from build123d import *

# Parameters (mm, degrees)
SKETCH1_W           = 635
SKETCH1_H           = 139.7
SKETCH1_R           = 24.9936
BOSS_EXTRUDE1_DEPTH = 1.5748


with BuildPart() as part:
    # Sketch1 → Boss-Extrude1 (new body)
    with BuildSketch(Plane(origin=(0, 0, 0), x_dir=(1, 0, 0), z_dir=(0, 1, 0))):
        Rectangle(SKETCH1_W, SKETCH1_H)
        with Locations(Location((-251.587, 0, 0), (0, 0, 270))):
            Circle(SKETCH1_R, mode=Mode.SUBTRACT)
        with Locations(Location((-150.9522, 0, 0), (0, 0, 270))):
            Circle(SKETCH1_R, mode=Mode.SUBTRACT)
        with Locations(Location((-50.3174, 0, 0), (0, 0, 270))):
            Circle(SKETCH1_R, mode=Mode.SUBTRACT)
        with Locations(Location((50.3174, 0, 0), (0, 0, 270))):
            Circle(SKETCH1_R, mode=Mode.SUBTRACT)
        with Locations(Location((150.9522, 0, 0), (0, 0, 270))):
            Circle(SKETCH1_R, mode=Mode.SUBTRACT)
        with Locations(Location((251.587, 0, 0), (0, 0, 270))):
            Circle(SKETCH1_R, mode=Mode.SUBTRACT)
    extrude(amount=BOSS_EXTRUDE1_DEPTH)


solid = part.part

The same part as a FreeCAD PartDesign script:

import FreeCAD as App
import Part
import Sketcher

V = App.Vector
Q = App.Units.Quantity

doc = App.newDocument("Part")
body = doc.addObject("PartDesign::Body", "Body")

# Sketch on XZ plane
sketch1 = doc.addObject("Sketcher::SketchObject", "Sketch")
body.addObject(sketch1)
sketch1.AttachmentSupport = (doc.XZ_Plane, [""])
sketch1.MapMode = "FlatFace"
sketch1.addGeometry([
    Part.LineSegment(V(-318, -70, 0), V(-318, 70, 0)),  # 0
    Part.LineSegment(V(-318, 70, 0), V(318, 70, 0)),  # 1
    Part.LineSegment(V(318, 70, 0), V(318, -70, 0)),  # 2
    Part.LineSegment(V(318, -70, 0), V(-318, -70, 0)),  # 3
    Part.Circle(V(-252, 0, 0), V(0, 0, 1), 25),  # 4
    Part.Circle(V(-151, 0, 0), V(0, 0, 1), 25),  # 5
    Part.Circle(V(-50, 0, 0), V(0, 0, 1), 25),  # 6
    Part.Circle(V(50, 0, 0), V(0, 0, 1), 25),  # 7
    Part.Circle(V(151, 0, 0), V(0, 0, 1), 25),  # 8
    Part.Circle(V(252, 0, 0), V(0, 0, 1), 25),  # 9
], False)
sketch1.addConstraint([
    Sketcher.Constraint("Coincident", 0, 2, 1, 1),
    Sketcher.Constraint("Coincident", 1, 2, 2, 1),
    Sketcher.Constraint("Coincident", 2, 2, 3, 1),
    Sketcher.Constraint("Coincident", 3, 2, 0, 1),
    Sketcher.Constraint("Vertical", 0),
    Sketcher.Constraint("Horizontal", 1),
    Sketcher.Constraint("Vertical", 2),
    Sketcher.Constraint("Horizontal", 3),
    Sketcher.Constraint("Equal", 4, 5),
    Sketcher.Constraint("Equal", 5, 6),
    Sketcher.Constraint("Equal", 6, 7),
    Sketcher.Constraint("Equal", 7, 8),
    Sketcher.Constraint("Equal", 8, 9),
    Sketcher.Constraint("Symmetric", 6, 3, 7, 3, -1, 1),
    Sketcher.Constraint("Symmetric", 5, 3, 8, 3, -1, 1),
    Sketcher.Constraint("Symmetric", 4, 3, 9, 3, -1, 1),
    Sketcher.Constraint("Symmetric", 0, 2, 2, 2, -1, 1),
    Sketcher.Constraint("PointOnObject", 4, 3, -1),
    Sketcher.Constraint("PointOnObject", 5, 3, -1),
    Sketcher.Constraint("PointOnObject", 6, 3, -1),
    Sketcher.Constraint("DistanceX", 1, 1, 1, 2, Q("25 in")),
    Sketcher.Constraint("Diameter", 4, Q("1.968 in")),
    Sketcher.Constraint("DistanceY", 0, 1, 0, 2, Q("5.5 in")),
    Sketcher.Constraint("DistanceX", 4, 3, 9, 3, Q("19.81 in")),
    Sketcher.Constraint("DistanceX", 5, 3, -1, 1, Q("5.943 in")),
    Sketcher.Constraint("DistanceX", 6, 3, -1, 1, Q("1.981 in")),
])
pad1 = doc.addObject("PartDesign::Pad", "Pad")
body.addObject(pad1)
pad1.Profile = sketch1
pad1.Length = Q("0.062 in")
pad1.Reversed = True

doc.recompute()
